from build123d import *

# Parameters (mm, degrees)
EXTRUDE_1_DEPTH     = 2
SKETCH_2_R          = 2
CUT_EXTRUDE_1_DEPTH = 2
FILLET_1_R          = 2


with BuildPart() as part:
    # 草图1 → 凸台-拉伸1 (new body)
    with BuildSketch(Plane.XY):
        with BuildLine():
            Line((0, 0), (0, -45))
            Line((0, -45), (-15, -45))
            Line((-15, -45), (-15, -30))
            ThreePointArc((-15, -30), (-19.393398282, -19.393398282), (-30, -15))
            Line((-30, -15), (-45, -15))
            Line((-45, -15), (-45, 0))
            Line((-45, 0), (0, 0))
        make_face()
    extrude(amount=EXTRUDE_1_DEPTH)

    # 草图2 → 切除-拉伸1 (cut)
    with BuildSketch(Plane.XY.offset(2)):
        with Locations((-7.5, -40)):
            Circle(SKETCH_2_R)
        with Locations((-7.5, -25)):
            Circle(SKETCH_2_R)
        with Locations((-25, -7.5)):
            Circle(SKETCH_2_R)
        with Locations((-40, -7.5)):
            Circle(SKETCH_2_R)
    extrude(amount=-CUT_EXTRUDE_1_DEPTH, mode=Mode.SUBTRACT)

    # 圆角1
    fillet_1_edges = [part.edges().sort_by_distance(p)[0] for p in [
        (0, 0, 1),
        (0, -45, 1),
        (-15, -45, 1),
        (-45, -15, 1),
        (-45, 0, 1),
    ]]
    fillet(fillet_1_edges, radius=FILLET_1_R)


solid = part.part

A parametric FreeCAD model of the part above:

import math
import FreeCAD as App
import Part
import Sketcher


def edges_at(feature, points):
    """Names of the edges that pass closest to the given points."""
    edges = feature.Shape.Edges
    near = lambda p: min(range(len(edges)), key=lambda i: edges[i].distToShape(Part.Vertex(*p))[0])
    return sorted({f"Edge{near(p) + 1}" for p in points})

doc = App.newDocument("Part")
body = doc.addObject("PartDesign::Body", "Body")

# Sketch on XY plane
sketch1 = body.newObject("Sketcher::SketchObject", "Sketch")
sketch1.AttachmentSupport = (doc.getObject("XY_Plane"), [""])
sketch1.MapMode = "FlatFace"
sketch1.addGeometry(Part.LineSegment(App.Vector(0, -45, 0), App.Vector(0, 0, 0)), False)
sketch1.addGeometry(Part.LineSegment(App.Vector(0, 0, 0), App.Vector(-45, 0, 0)), False)
sketch1.addGeometry(Part.LineSegment(App.Vector(-45, 0, 0), App.Vector(-45, -15, 0)), False)
sketch1.addGeometry(Part.LineSegment(App.Vector(-45, -15, 0), App.Vector(-30, -15, 0)), False)
sketch1.addGeometry(Part.ArcOfCircle(Part.Circle(App.Vector(-30, -30, 0), App.Vector(0, 0, 1), 15), math.radians(0), math.radians(90)), False)
sketch1.addGeometry(Part.LineSegment(App.Vector(-15, -30, 0), App.Vector(-15, -45, 0)), False)
sketch1.addGeometry(Part.LineSegment(App.Vector(-15, -45, 0), App.Vector(0, -45, 0)), False)
sketch1.addConstraint(Sketcher.Constraint("Coincident", 0, 2, 1, 1))
sketch1.addConstraint(Sketcher.Constraint("Coincident", 1, 2, 2, 1))
sketch1.addConstraint(Sketcher.Constraint("Coincident", 2, 2, 3, 1))
sketch1.addConstraint(Sketcher.Constraint("Tangent", 3, 2, 4, 2))
sketch1.addConstraint(Sketcher.Constraint("Tangent", 4, 1, 5, 1))
sketch1.addConstraint(Sketcher.Constraint("Coincident", 5, 2, 6, 1))
sketch1.addConstraint(Sketcher.Constraint("Coincident", 6, 2, 0, 1))
sketch1.addConstraint(Sketcher.Constraint("Vertical", 0))
sketch1.addConstraint(Sketcher.Constraint("Horizontal", 1))
sketch1.addConstraint(Sketcher.Constraint("Vertical", 2))
sketch1.addConstraint(Sketcher.Constraint("Horizontal", 3))
sketch1.addConstraint(Sketcher.Constraint("Vertical", 5))
sketch1.addConstraint(Sketcher.Constraint("Horizontal", 6))
sketch1.addConstraint(Sketcher.Constraint("Coincident", 0, 2, -1, 1))
sketch1.addConstraint(Sketcher.Constraint("Equal", 3, 6))
sketch1.addConstraint(Sketcher.Constraint("Equal", 1, 0))
sketch1.addConstraint(Sketcher.Constraint("Equal", 6, 2))
sketch1.addConstraint(Sketcher.Constraint("Radius", 4, 15.0))
sketch1.addConstraint(Sketcher.Constraint("DistanceX", 1, 2, 1, 1, 45.0))
pad1 = body.newObject("PartDesign::Pad", "Pad")
pad1.Profile = sketch1
pad1.Length = 2

# Sketch on XY plane
sketch2 = body.newObject("Sketcher::SketchObject", "Sketch001")
sketch2.AttachmentSupport = (doc.getObject("XY_Plane"), [""])
sketch2.MapMode = "FlatFace"
sketch2.AttachmentOffset = App.Placement(App.Vector(0, 0, 2), App.Rotation())
sketch2.addGeometry(Part.Circle(App.Vector(-7.5, -40, 0), App.Vector(0, 0, 1), 2), False)
sketch2.addGeometry(Part.Circle(App.Vector(-7.5, -25, 0), App.Vector(0, 0, 1), 2), False)
sketch2.addGeometry(Part.Circle(App.Vector(-25, -7.5, 0), App.Vector(0, 0, 1), 2), False)
sketch2.addGeometry(Part.Circle(App.Vector(-40, -7.5, 0), App.Vector(0, 0, 1), 2), False)
sketch2.addConstraint(Sketcher.Constraint("Equal", 0, 1))
sketch2.addConstraint(Sketcher.Constraint("Equal", 1, 2))
sketch2.addConstraint(Sketcher.Constraint("Equal", 2, 3))
sketch2.addConstraint(Sketcher.Constraint("Horizontal", 2, 3, 3, 3))
sketch2.addConstraint(Sketcher.Constraint("Vertical", 0, 3, 1, 3))
sketch2.addConstraint(Sketcher.Constraint("Diameter", 0, 4.0))
sketch2.addConstraint(Sketcher.Constraint("DistanceY", 0, 3, -1, 1, 40.0))
sketch2.addConstraint(Sketcher.Constraint("DistanceY", 1, 3, -1, 1, 25.0))
sketch2.addConstraint(Sketcher.Constraint("DistanceX", 2, 3, -1, 1, 25.0))
sketch2.addConstraint(Sketcher.Constraint("DistanceX", 3, 3, -1, 1, 40.0))
sketch2.addConstraint(Sketcher.Constraint("DistanceX", 0, 3, -1, 1, 7.5))
sketch2.addConstraint(Sketcher.Constraint("DistanceY", 2, 3, -1, 1, 7.5))
pocket1 = body.newObject("PartDesign::Pocket", "Pocket")
pocket1.Profile = sketch2
pocket1.Length = 2
doc.recompute()

fillet = body.newObject("PartDesign::Fillet", "Fillet")
fillet.Base = (pocket1, edges_at(pocket1, [
    (0, 0, 1),
    (0, -45, 1),
    (-15, -45, 1),
    (-45, -15, 1),
    (-45, 0, 1),
]))
fillet.Radius = 2

doc.recompute()
